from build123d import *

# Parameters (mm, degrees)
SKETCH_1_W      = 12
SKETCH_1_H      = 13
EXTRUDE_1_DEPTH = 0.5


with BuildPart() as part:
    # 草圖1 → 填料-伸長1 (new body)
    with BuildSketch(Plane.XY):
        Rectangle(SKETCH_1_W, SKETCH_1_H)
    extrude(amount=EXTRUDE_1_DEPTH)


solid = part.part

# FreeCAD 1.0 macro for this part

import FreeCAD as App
import Part
import Sketcher
from FreeCAD import Vector
Q = App.Units.Quantity


def add_polygon(sketch, points):
    """Adds a closed chain of lines whose ends are joined by coincident constraints."""
    first, n = sketch.GeometryCount, len(points)
    for a, b in zip(points, points[1:] + points[:1]):
        sketch.addGeometry(Part.LineSegment(App.Vector(*a, 0), App.Vector(*b, 0)), False)
    for i in range(n):
        sketch.addConstraint(Sketcher.Constraint("Coincident", first + i, 2, first + (i + 1) % n, 1))

doc = App.newDocument("Part")
body = doc.addObject("PartDesign::Body", "Body")

# Sketch on XY plane
sketch1 = body.newObject("Sketcher::SketchObject", "Sketch")
sketch1.AttachmentSupport = (doc.getObject("XY_Plane"), [""])
sketch1.MapMode = "FlatFace"
add_polygon(sketch1, [(-6, 6), (-6, -6), (6, -6), (6, 6)])  # lines 0-3
sketch1.addConstraint([
    Sketcher.Constraint("Vertical", 0),
    Sketcher.Constraint("Horizontal", 1),
    Sketcher.Constraint("Vertical", 2),
    Sketcher.Constraint("Horizontal", 3),
    Sketcher.Constraint("Symmetric", 0, 2, 2, 2, -1, 1),
    Sketcher.Constraint("DistanceX", 1, 1, 1, 2, Q("12 mm")),
    Sketcher.Constraint("DistanceY", 0, 2, 0, 1, Q("13 mm")),
])
pad1 = body.newObject("PartDesign::Pad", "Pad")
pad1.Profile = sketch1
pad1.Length = 0.5

doc.recompute()
